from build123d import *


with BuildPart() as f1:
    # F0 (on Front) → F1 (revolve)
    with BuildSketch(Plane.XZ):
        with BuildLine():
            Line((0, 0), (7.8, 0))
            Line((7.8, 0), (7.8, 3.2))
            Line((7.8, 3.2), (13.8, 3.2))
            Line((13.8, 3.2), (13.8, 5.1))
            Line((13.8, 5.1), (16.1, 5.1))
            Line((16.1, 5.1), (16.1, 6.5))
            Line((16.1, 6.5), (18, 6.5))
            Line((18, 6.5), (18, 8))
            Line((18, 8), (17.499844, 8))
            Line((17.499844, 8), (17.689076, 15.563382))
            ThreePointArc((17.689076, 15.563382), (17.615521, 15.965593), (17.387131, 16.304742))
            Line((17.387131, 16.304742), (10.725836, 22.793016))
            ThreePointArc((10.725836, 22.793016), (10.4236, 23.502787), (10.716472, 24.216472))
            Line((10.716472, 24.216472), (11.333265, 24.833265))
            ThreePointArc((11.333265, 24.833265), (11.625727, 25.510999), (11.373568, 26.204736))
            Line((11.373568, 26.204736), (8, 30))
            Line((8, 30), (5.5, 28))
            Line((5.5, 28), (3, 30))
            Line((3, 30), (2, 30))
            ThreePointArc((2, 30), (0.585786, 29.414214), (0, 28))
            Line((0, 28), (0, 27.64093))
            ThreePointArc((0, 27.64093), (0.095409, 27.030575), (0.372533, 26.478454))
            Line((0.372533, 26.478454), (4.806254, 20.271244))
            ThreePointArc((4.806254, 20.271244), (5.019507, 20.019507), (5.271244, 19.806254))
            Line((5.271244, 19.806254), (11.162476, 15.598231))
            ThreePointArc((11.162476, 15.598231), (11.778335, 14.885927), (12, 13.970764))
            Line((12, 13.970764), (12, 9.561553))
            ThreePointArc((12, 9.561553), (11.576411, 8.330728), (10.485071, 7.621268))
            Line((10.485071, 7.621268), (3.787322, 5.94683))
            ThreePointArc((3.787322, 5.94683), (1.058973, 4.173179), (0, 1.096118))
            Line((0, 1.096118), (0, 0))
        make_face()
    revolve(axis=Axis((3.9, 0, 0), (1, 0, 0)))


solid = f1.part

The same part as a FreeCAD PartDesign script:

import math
import FreeCAD as App
import Part
import Sketcher
from FreeCAD import Vector
Q = App.Units.Quantity

doc = App.newDocument("Part")
body = doc.addObject("PartDesign::Body", "Body")

sketch1 = body.newObject("Sketcher::SketchObject", "Sketch")
sketch1.AttachmentSupport = (doc.getObject("XZ_Plane"), [""])
sketch1.MapMode = "FlatFace"
sketch1.addGeometry([
    Part.LineSegment(Vector(0, 0, 0), Vector(7.8, 0, 0)),
    Part.LineSegment(Vector(7.8, 0, 0), Vector(7.8, 3.2, 0)),
    Part.LineSegment(Vector(7.8, 3.2, 0), Vector(13.8, 3.2, 0)),
    Part.LineSegment(Vector(13.8, 3.2, 0), Vector(13.8, 5.1, 0)),
    Part.LineSegment(Vector(13.8, 5.1, 0), Vector(16.1, 5.1, 0)),
    Part.LineSegment(Vector(16.1, 5.1, 0), Vector(16.1, 6.5, 0)),
    Part.LineSegment(Vector(16.1, 6.5, 0), Vector(18, 6.5, 0)),
    Part.LineSegment(Vector(18, 6.5, 0), Vector(18, 8, 0)),
    Part.LineSegment(Vector(18, 8, 0), Vector(17.5, 8, 0)),
    Part.LineSegment(Vector(17.5, 8, 0), Vector(17.69, 15.56, 0)),
    Part.ArcOfCircle(Part.Circle(Vector(16.69, 15.59, 0), Vector(0, 0, 1), 1), math.radians(-1), math.radians(46)),
    Part.LineSegment(Vector(17.39, 16.3, 0), Vector(10.73, 22.79, 0)),
    Part.ArcOfCircle(Part.Circle(Vector(11.42, 23.51, 0), Vector(0, 0, 1), 1), math.radians(135), math.radians(226)),
    Part.LineSegment(Vector(10.72, 24.22, 0), Vector(11.33, 24.83, 0)),
    Part.ArcOfCircle(Part.Circle(Vector(10.63, 25.54, 0), Vector(0, 0, 1), 1), math.radians(-45), math.radians(42)),
    Part.LineSegment(Vector(11.37, 26.2, 0), Vector(8, 30, 0)),
    Part.LineSegment(Vector(8, 30, 0), Vector(5.5, 28, 0)),
    Part.LineSegment(Vector(5.5, 28, 0), Vector(3, 30, 0)),
    Part.LineSegment(Vector(3, 30, 0), Vector(2, 30, 0)),
    Part.ArcOfCircle(Part.Circle(Vector(2, 28, 0), Vector(0, 0, 1), 2), math.radians(90), math.radians(180)),
    Part.LineSegment(Vector(0, 28, 0), Vector(0, 27.64, 0)),
    Part.ArcOfCircle(Part.Circle(Vector(2, 27.64, 0), Vector(0, 0, 1), 2), math.radians(180), math.radians(216)),
    Part.LineSegment(Vector(0.37, 26.48, 0), Vector(4.81, 20.27, 0)),
    Part.ArcOfCircle(Part.Circle(Vector(6.43, 21.43, 0), Vector(0, 0, 1), 2), math.radians(-144.46), math.radians(-125.54)),
    Part.LineSegment(Vector(5.27, 19.81, 0), Vector(11.16, 15.6, 0)),
    Part.ArcOfCircle(Part.Circle(Vector(10, 13.97, 0), Vector(0, 0, 1), 2), math.radians(0), math.radians(54)),
    Part.LineSegment(Vector(12, 13.97, 0), Vector(12, 9.56, 0)),
    Part.ArcOfCircle(Part.Circle(Vector(10, 9.56, 0), Vector(0, 0, 1), 2), math.radians(-76), math.radians(0)),
    Part.LineSegment(Vector(10.49, 7.62, 0), Vector(3.79, 5.95, 0)),
    Part.ArcOfCircle(Part.Circle(Vector(5, 1.1, 0), Vector(0, 0, 1), 5), math.radians(104), math.radians(180)),
    Part.LineSegment(Vector(0, 1.1, 0), Vector(0, 0, 0)),
], False)
sketch1.addConstraint([
    Sketcher.Constraint("Coincident", 0, 2, 1, 1),
    Sketcher.Constraint("Coincident", 1, 2, 2, 1),
    Sketcher.Constraint("Coincident", 2, 2, 3, 1),
    Sketcher.Constraint("Coincident", 3, 2, 4, 1),
    Sketcher.Constraint("Coincident", 4, 2, 5, 1),
    Sketcher.Constraint("Coincident", 5, 2, 6, 1),
    Sketcher.Constraint("Coincident", 6, 2, 7, 1),
    Sketcher.Constraint("Coincident", 7, 2, 8, 1),
    Sketcher.Constraint("Coincident", 8, 2, 9, 1),
    Sketcher.Constraint("Tangent", 9, 2, 10, 1),
    Sketcher.Constraint("Tangent", 10, 2, 11, 1),
    Sketcher.Constraint("Tangent", 11, 2, 12, 2),
    Sketcher.Constraint("Tangent", 12, 1, 13, 1),
    Sketcher.Constraint("Tangent", 13, 2, 14, 1),
    Sketcher.Constraint("Tangent", 14, 2, 15, 1),
    Sketcher.Constraint("Coincident", 15, 2, 16, 1),
    Sketcher.Constraint("Coincident", 16, 2, 17, 1),
    Sketcher.Constraint("Coincident", 17, 2, 18, 1),
    Sketcher.Constraint("Tangent", 18, 2, 19, 1),
    Sketcher.Constraint("Tangent", 19, 2, 20, 1),
    Sketcher.Constraint("Tangent", 20, 2, 21, 1),
    Sketcher.Constraint("Tangent", 21, 2, 22, 1),
    Sketcher.Constraint("Tangent", 22, 2, 23, 1),
    Sketcher.Constraint("Tangent", 23, 2, 24, 1),
    Sketcher.Constraint("Tangent", 24, 2, 25, 2),
    Sketcher.Constraint("Tangent", 25, 1, 26, 1),
    Sketcher.Constraint("Tangent", 26, 2, 27, 2),
    Sketcher.Constraint("Tangent", 27, 1, 28, 1),
    Sketcher.Constraint("Tangent", 28, 2, 29, 1),
    Sketcher.Constraint("Tangent", 29, 2, 30, 1),
    Sketcher.Constraint("Coincident", 30, 2, 0, 1),
    Sketcher.Constraint("Horizontal", 0),
    Sketcher.Constraint("Vertical", 1),
    Sketcher.Constraint("Horizontal", 2),
    Sketcher.Constraint("Vertical", 3),
    Sketcher.Constraint("Horizontal", 4),
    Sketcher.Constraint("Vertical", 5),
    Sketcher.Constraint("Horizontal", 6),
    Sketcher.Constraint("Vertical", 7),
    Sketcher.Constraint("Horizontal", 8),
    Sketcher.Constraint("Horizontal", 18),
    Sketcher.Constraint("Vertical", 20),
    Sketcher.Constraint("Vertical", 26),
    Sketcher.Constraint("Vertical", 30),
    Sketcher.Constraint("Coincident", 30, 2, -1, 1),
    Sketcher.Constraint("Equal", 12, 14),
    Sketcher.Constraint("Equal", 19, 21),
    Sketcher.Constraint("Equal", 21, 27),
    Sketcher.Constraint("PointOnObject", 19, 2, -2),
    Sketcher.Constraint("Horizontal", 19, 3, 16, 2),
    Sketcher.Constraint("Horizontal", 15, 2, 17, 2),
    Sketcher.Constraint("Equal", 6, 3),
    Sketcher.Constraint("Equal", 16, 17),
    Sketcher.Constraint("Radius", 12, Q("1 mm")),
    Sketcher.Constraint("Radius", 19, Q("1.999999 mm")),
    Sketcher.Constraint("Radius", 25, Q("2.000002 mm")),
    Sketcher.Constraint("Radius", 29, Q("4.999999 mm")),
    Sketcher.Constraint("DistanceX", 2, 1, 2, 2, Q("6 mm")),
    Sketcher.Constraint("DistanceX", 18, 2, 18, 1, Q("1 mm")),
    Sketcher.Constraint("Angle", 13, Q("45 deg")),
    Sketcher.Constraint("DistanceX", 0, 1, 0, 2, Q("7.8 mm")),
    Sketcher.Constraint("DistanceX", 4, 1, 4, 2, Q("2.3 mm")),
    Sketcher.Constraint("DistanceX", 6, 1, 6, 2, Q("1.9 mm")),
    Sketcher.Constraint("DistanceY", 1, 1, 1, 2, Q("3.2 mm")),
    Sketcher.Constraint("DistanceY", 5, 1, 5, 2, Q("1.4 mm")),
    Sketcher.Constraint("DistanceY", 7, 1, 7, 2, Q("1.5 mm")),
    Sketcher.Constraint("DistanceY", -1, 1, 19, 3, Q("28.000001 mm")),
    Sketcher.Constraint("DistanceX", -1, 1, 25, 3, Q("9.999998 mm")),
    Sketcher.Constraint("DistanceX", -1, 1, 15, 2, Q("8 mm")),
    Sketcher.Constraint("Radius", 10, Q("0.999997 mm")),
    Sketcher.Constraint("Radius", 23, Q("1.999985 mm")),
    Sketcher.Constraint("DistanceY", 20, 2, 20, 1, Q("0.35907 mm")),
    Sketcher.Constraint("DistanceY", 26, 2, 26, 1, Q("4.409211 mm")),
    Sketcher.Constraint("DistanceY", 25, 3, 12, 3, Q("9.538602 mm")),
    Sketcher.Constraint("DistanceY", 12, 1, 14, 3, Q("1.3239 mm")),
    Sketcher.Constraint("DistanceX", 24, 2, 9, 2, Q("6.5266 mm")),
    Sketcher.Constraint("Distance", 9, Q("7.565749 mm")),
    Sketcher.Constraint("Distance", 28, Q("6.903882 mm")),
    Sketcher.Constraint("DistanceX", 8, 2, 8, 1, Q("0.500156 mm")),
    Sketcher.Constraint("DistanceY", 30, 2, 30, 1, Q("1.096118 mm")),
    Sketcher.Constraint("DistanceX", -1, 1, 12, 3, Q("11.423578 mm")),
    Sketcher.Constraint("DistanceX", -1, 1, 23, 3, Q("6.43371 mm")),
    Sketcher.Constraint("DistanceY", -1, 1, 23, 3, Q("21.43371 mm")),
])
revolution = body.newObject("PartDesign::Revolution", "Revolution")
revolution.Profile = sketch1
revolution.ReferenceAxis = (sketch1, ["H_Axis"])
revolution.Angle = 360

doc.recompute()
